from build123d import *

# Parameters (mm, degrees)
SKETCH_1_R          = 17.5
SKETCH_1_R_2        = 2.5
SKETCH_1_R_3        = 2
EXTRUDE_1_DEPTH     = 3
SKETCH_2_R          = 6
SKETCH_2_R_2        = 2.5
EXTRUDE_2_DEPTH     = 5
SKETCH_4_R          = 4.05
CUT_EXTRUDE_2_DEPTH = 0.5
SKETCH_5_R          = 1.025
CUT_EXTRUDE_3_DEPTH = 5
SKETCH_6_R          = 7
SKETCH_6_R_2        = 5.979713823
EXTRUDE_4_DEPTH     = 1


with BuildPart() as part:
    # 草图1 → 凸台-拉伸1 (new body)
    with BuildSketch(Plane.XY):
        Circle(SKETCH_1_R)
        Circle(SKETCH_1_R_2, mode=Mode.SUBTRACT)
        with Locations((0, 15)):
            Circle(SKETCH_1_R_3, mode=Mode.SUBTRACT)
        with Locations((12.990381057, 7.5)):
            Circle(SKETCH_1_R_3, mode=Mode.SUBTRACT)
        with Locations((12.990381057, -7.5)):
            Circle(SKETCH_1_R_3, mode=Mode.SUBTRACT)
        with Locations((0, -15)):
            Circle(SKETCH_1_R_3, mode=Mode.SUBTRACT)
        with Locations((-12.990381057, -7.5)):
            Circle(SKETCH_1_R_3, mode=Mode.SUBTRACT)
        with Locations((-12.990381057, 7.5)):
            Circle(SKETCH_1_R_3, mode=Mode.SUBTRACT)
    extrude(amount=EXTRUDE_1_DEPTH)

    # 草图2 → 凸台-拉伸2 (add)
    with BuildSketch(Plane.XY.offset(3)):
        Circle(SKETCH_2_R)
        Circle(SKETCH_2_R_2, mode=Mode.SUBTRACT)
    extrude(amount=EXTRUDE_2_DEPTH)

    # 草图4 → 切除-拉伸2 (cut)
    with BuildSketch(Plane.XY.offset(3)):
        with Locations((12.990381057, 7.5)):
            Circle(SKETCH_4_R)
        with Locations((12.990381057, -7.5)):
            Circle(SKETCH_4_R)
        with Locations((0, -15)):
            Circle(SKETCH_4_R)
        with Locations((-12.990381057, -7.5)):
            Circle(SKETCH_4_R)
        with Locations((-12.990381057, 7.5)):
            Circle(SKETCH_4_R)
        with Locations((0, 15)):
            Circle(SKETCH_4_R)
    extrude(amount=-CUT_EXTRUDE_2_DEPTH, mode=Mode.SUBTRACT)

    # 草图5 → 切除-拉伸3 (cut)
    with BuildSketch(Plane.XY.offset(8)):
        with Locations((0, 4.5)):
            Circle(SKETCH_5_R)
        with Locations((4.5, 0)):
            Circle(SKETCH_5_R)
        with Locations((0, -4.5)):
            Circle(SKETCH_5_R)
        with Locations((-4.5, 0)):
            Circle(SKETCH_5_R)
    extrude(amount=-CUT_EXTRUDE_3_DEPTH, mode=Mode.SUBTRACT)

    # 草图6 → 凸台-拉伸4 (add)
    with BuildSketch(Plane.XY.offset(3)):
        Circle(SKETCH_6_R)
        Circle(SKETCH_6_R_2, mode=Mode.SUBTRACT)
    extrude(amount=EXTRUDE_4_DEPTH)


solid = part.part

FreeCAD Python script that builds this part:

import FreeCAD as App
import Part
import Sketcher
from FreeCAD import Vector
Q = App.Units.Quantity

doc = App.newDocument("Part")
params = doc.addObject("Spreadsheet::Sheet", "Params")
for row, (alias, value) in enumerate([
    ("sketch1_diameter", "35 mm"),
    ("sketch1_diameter2", "4 mm"),
    ("sketch1_diameter3", "5 mm"),
    ("pad1_length", "3 mm"),
    ("sketch2_diameter", "12 mm"),
    ("sketch2_diameter2", "5 mm"),
    ("pad2_length", "5 mm"),
    ("sketch3_diameter", "8.1 mm"),
    ("pocket1_length", "0.5 mm"),
    ("sketch4_diameter", "2.05 mm"),
    ("pocket2_length", "5 mm"),
    ("sketch5_diameter", "14 mm"),
    ("pad3_length", "1 mm"),
], start=1):
    params.set(f"A{row}", alias)
    params.set(f"B{row}", "=" + value)
    params.setAlias(f"B{row}", alias)

body = doc.addObject("PartDesign::Body", "Body")

# Sketch on XY plane
sketch1 = body.newObject("Sketcher::SketchObject", "Sketch")
sketch1.AttachmentSupport = (doc.getObject("XY_Plane"), [""])
sketch1.MapMode = "FlatFace"
sketch1.addGeometry(Part.Circle(Vector(0, 0, 0), Vector(0, 0, 1), 17.5), False)
sketch1.addGeometry(Part.Circle(Vector(-13, -7.5, 0), Vector(0, 0, 1), 2), False)
sketch1.addGeometry(Part.Circle(Vector(0, -15, 0), Vector(0, 0, 1), 2), False)
sketch1.addGeometry(Part.Circle(Vector(13, -7.5, 0), Vector(0, 0, 1), 2), False)
sketch1.addGeometry(Part.Circle(Vector(-13, 7.5, 0), Vector(0, 0, 1), 2), False)
sketch1.addGeometry(Part.Circle(Vector(0, 0, 0), Vector(0, 0, 1), 2.5), False)
sketch1.addGeometry(Part.Circle(Vector(13, 7.5, 0), Vector(0, 0, 1), 2), False)
sketch1.addGeometry(Part.Circle(Vector(0, 15, 0), Vector(0, 0, 1), 2), False)
sketch1.addConstraint(Sketcher.Constraint("Coincident", 0, 3, -1, 1))
sketch1.addConstraint(Sketcher.Constraint("Coincident", 5, 3, -1, 1))
sketch1.addConstraint(Sketcher.Constraint("Equal", 1, 2))
sketch1.addConstraint(Sketcher.Constraint("Equal", 2, 3))
sketch1.addConstraint(Sketcher.Constraint("Equal", 3, 4))
sketch1.addConstraint(Sketcher.Constraint("Equal", 4, 6))
sketch1.addConstraint(Sketcher.Constraint("Equal", 6, 7))
sketch1.addConstraint(Sketcher.Constraint("Symmetric", 3, 3, 4, 3, -1, 1))
sketch1.addConstraint(Sketcher.Constraint("Symmetric", 1, 3, 6, 3, -1, 1))
sketch1.addConstraint(Sketcher.Constraint("Symmetric", 2, 3, 7, 3, -1, 1))
sketch1.addConstraint(Sketcher.Constraint("Symmetric", 1, 3, 3, 3, -2))
sketch1.addConstraint(Sketcher.Constraint("PointOnObject", 2, 3, -2))
sketch1.addConstraint(Sketcher.Constraint("Diameter", 0, Q("35 mm")))
sketch1.addConstraint(Sketcher.Constraint("Diameter", 1, Q("4 mm")))
sketch1.addConstraint(Sketcher.Constraint("Diameter", 5, Q("5 mm")))
sketch1.addConstraint(Sketcher.Constraint("DistanceY", 2, 3, -1, 1, Q("15 mm")))
sketch1.addConstraint(Sketcher.Constraint("DistanceY", 1, 3, 4, 3, Q("15 mm")))
sketch1.addConstraint(Sketcher.Constraint("DistanceX", 1, 3, -1, 1, Q("12.990381 mm")))
sketch1.setExpression("Constraints[12]", "Params.sketch1_diameter")
sketch1.setExpression("Constraints[13]", "Params.sketch1_diameter2")
sketch1.setExpression("Constraints[14]", "Params.sketch1_diameter3")
pad1 = body.newObject("PartDesign::Pad", "Pad")
pad1.Profile = sketch1
pad1.setExpression("Length", "Params.pad1_length")

# Sketch on XY plane
sketch2 = body.newObject("Sketcher::SketchObject", "Sketch001")
sketch2.AttachmentSupport = (doc.getObject("XY_Plane"), [""])
sketch2.MapMode = "FlatFace"
sketch2.AttachmentOffset = App.Placement(Vector(0, 0, 3), App.Rotation())
sketch2.addGeometry(Part.Circle(Vector(0, 0, 0), Vector(0, 0, 1), 6), False)
sketch2.addGeometry(Part.Circle(Vector(0, 0, 0), Vector(0, 0, 1), 2.5), False)
sketch2.addConstraint(Sketcher.Constraint("Coincident", 0, 3, -1, 1))
sketch2.addConstraint(Sketcher.Constraint("Coincident", 1, 3, -1, 1))
sketch2.addConstraint(Sketcher.Constraint("Diameter", 0, Q("12 mm")))
sketch2.addConstraint(Sketcher.Constraint("Diameter", 1, Q("5 mm")))
sketch2.setExpression("Constraints[2]", "Params.sketch2_diameter")
sketch2.setExpression("Constraints[3]", "Params.sketch2_diameter2")
pad2 = body.newObject("PartDesign::Pad", "Pad001")
pad2.Profile = sketch2
pad2.setExpression("Length", "Params.pad2_length")

# Sketch on XY plane
sketch3 = body.newObject("Sketcher::SketchObject", "Sketch002")
sketch3.AttachmentSupport = (doc.getObject("XY_Plane"), [""])
sketch3.MapMode = "FlatFace"
sketch3.AttachmentOffset = App.Placement(Vector(0, 0, 3), App.Rotation())
sketch3.addGeometry(Part.Circle(Vector(13, 7.5, 0), Vector(0, 0, 1), 4), False)
sketch3.addGeometry(Part.Circle(Vector(13, -7.5, 0), Vector(0, 0, 1), 4), False)
sketch3.addGeometry(Part.Circle(Vector(0, -15, 0), Vector(0, 0, 1), 4), False)
sketch3.addGeometry(Part.Circle(Vector(-13, -7.5, 0), Vector(0, 0, 1), 4), False)
sketch3.addGeometry(Part.Circle(Vector(-13, 7.5, 0), Vector(0, 0, 1), 4), False)
sketch3.addGeometry(Part.Circle(Vector(0, 15, 0), Vector(0, 0, 1), 4), False)
sketch3.addConstraint(Sketcher.Constraint("Equal", 0, 1))
sketch3.addConstraint(Sketcher.Constraint("Equal", 1, 2))
sketch3.addConstraint(Sketcher.Constraint("Equal", 2, 3))
sketch3.addConstraint(Sketcher.Constraint("Equal", 3, 4))
sketch3.addConstraint(Sketcher.Constraint("Equal", 4, 5))
sketch3.addConstraint(Sketcher.Constraint("Symmetric", 0, 3, 3, 3, -1, 1))
sketch3.addConstraint(Sketcher.Constraint("Symmetric", 1, 3, 4, 3, -1, 1))
sketch3.addConstraint(Sketcher.Constraint("Symmetric", 2, 3, 5, 3, -1, 1))
sketch3.addConstraint(Sketcher.Constraint("Symmetric", 1, 3, 3, 3, -2))
sketch3.addConstraint(Sketcher.Constraint("PointOnObject", 2, 3, -2))
sketch3.addConstraint(Sketcher.Constraint("Diameter", 0, Q("8.1 mm")))
sketch3.addConstraint(Sketcher.Constraint("DistanceY", 2, 3, -1, 1, Q("15 mm")))
sketch3.addConstraint(Sketcher.Constraint("DistanceY", 1, 3, 0, 3, Q("15 mm")))
sketch3.addConstraint(Sketcher.Constraint("DistanceX", -1, 1, 0, 3, Q("12.990381 mm")))
sketch3.setExpression("Constraints[10]", "Params.sketch3_diameter")
pocket1 = body.newObject("PartDesign::Pocket", "Pocket")
pocket1.Profile = sketch3
pocket1.setExpression("Length", "Params.pocket1_length")

# Sketch on XY plane
sketch4 = body.newObject("Sketcher::SketchObject", "Sketch003")
sketch4.AttachmentSupport = (doc.getObject("XY_Plane"), [""])
sketch4.MapMode = "FlatFace"
sketch4.AttachmentOffset = App.Placement(Vector(0, 0, 8), App.Rotation())
sketch4.addGeometry(Part.Circle(Vector(0, 4.5, 0), Vector(0, 0, 1), 1), False)
sketch4.addGeometry(Part.Circle(Vector(4.5, 0, 0), Vector(0, 0, 1), 1), False)
sketch4.addGeometry(Part.Circle(Vector(0, -4.5, 0), Vector(0, 0, 1), 1), False)
sketch4.addGeometry(Part.Circle(Vector(-4.5, 0, 0), Vector(0, 0, 1), 1), False)
sketch4.addConstraint(Sketcher.Constraint("Equal", 0, 1))
sketch4.addConstraint(Sketcher.Constraint("Equal", 1, 2))
sketch4.addConstraint(Sketcher.Constraint("Equal", 2, 3))
sketch4.addConstraint(Sketcher.Constraint("Symmetric", 0, 3, 2, 3, -1, 1))
sketch4.addConstraint(Sketcher.Constraint("Symmetric", 1, 3, 3, 3, -1, 1))
sketch4.addConstraint(Sketcher.Constraint("PointOnObject", 0, 3, -2))
sketch4.addConstraint(Sketcher.Constraint("PointOnObject", 1, 3, -1))
sketch4.addConstraint(Sketcher.Constraint("Diameter", 0, Q("2.05 mm")))
sketch4.addConstraint(Sketcher.Constraint("DistanceY", 2, 3, 0, 3, Q("9 mm")))
sketch4.addConstraint(Sketcher.Constraint("DistanceX", 3, 3, 1, 3, Q("9 mm")))
sketch4.setExpression("Constraints[7]", "Params.sketch4_diameter")
pocket2 = body.newObject("PartDesign::Pocket", "Pocket001")
pocket2.Profile = sketch4
pocket2.setExpression("Length", "Params.pocket2_length")

# Sketch on XY plane
sketch5 = body.newObject("Sketcher::SketchObject", "Sketch004")
sketch5.AttachmentSupport = (doc.getObject("XY_Plane"), [""])
sketch5.MapMode = "FlatFace"
sketch5.AttachmentOffset = App.Placement(Vector(0, 0, 3), App.Rotation())
sketch5.addGeometry(Part.Circle(Vector(0, 0, 0), Vector(0, 0, 1), 7), False)
sketch5.addGeometry(Part.Circle(Vector(0, 0, 0), Vector(0, 0, 1), 6), False)
sketch5.addConstraint(Sketcher.Constraint("Coincident", 0, 3, -1, 1))
sketch5.addConstraint(Sketcher.Constraint("Coincident", 1, 3, -1, 1))
sketch5.addConstraint(Sketcher.Constraint("Diameter", 0, Q("14 mm")))
sketch5.addConstraint(Sketcher.Constraint("Diameter", 1, Q("11.959428 mm")))
sketch5.setExpression("Constraints[2]", "Params.sketch5_diameter")
pad3 = body.newObject("PartDesign::Pad", "Pad002")
pad3.Profile = sketch5
pad3.setExpression("Length", "Params.pad3_length")

doc.recompute()
